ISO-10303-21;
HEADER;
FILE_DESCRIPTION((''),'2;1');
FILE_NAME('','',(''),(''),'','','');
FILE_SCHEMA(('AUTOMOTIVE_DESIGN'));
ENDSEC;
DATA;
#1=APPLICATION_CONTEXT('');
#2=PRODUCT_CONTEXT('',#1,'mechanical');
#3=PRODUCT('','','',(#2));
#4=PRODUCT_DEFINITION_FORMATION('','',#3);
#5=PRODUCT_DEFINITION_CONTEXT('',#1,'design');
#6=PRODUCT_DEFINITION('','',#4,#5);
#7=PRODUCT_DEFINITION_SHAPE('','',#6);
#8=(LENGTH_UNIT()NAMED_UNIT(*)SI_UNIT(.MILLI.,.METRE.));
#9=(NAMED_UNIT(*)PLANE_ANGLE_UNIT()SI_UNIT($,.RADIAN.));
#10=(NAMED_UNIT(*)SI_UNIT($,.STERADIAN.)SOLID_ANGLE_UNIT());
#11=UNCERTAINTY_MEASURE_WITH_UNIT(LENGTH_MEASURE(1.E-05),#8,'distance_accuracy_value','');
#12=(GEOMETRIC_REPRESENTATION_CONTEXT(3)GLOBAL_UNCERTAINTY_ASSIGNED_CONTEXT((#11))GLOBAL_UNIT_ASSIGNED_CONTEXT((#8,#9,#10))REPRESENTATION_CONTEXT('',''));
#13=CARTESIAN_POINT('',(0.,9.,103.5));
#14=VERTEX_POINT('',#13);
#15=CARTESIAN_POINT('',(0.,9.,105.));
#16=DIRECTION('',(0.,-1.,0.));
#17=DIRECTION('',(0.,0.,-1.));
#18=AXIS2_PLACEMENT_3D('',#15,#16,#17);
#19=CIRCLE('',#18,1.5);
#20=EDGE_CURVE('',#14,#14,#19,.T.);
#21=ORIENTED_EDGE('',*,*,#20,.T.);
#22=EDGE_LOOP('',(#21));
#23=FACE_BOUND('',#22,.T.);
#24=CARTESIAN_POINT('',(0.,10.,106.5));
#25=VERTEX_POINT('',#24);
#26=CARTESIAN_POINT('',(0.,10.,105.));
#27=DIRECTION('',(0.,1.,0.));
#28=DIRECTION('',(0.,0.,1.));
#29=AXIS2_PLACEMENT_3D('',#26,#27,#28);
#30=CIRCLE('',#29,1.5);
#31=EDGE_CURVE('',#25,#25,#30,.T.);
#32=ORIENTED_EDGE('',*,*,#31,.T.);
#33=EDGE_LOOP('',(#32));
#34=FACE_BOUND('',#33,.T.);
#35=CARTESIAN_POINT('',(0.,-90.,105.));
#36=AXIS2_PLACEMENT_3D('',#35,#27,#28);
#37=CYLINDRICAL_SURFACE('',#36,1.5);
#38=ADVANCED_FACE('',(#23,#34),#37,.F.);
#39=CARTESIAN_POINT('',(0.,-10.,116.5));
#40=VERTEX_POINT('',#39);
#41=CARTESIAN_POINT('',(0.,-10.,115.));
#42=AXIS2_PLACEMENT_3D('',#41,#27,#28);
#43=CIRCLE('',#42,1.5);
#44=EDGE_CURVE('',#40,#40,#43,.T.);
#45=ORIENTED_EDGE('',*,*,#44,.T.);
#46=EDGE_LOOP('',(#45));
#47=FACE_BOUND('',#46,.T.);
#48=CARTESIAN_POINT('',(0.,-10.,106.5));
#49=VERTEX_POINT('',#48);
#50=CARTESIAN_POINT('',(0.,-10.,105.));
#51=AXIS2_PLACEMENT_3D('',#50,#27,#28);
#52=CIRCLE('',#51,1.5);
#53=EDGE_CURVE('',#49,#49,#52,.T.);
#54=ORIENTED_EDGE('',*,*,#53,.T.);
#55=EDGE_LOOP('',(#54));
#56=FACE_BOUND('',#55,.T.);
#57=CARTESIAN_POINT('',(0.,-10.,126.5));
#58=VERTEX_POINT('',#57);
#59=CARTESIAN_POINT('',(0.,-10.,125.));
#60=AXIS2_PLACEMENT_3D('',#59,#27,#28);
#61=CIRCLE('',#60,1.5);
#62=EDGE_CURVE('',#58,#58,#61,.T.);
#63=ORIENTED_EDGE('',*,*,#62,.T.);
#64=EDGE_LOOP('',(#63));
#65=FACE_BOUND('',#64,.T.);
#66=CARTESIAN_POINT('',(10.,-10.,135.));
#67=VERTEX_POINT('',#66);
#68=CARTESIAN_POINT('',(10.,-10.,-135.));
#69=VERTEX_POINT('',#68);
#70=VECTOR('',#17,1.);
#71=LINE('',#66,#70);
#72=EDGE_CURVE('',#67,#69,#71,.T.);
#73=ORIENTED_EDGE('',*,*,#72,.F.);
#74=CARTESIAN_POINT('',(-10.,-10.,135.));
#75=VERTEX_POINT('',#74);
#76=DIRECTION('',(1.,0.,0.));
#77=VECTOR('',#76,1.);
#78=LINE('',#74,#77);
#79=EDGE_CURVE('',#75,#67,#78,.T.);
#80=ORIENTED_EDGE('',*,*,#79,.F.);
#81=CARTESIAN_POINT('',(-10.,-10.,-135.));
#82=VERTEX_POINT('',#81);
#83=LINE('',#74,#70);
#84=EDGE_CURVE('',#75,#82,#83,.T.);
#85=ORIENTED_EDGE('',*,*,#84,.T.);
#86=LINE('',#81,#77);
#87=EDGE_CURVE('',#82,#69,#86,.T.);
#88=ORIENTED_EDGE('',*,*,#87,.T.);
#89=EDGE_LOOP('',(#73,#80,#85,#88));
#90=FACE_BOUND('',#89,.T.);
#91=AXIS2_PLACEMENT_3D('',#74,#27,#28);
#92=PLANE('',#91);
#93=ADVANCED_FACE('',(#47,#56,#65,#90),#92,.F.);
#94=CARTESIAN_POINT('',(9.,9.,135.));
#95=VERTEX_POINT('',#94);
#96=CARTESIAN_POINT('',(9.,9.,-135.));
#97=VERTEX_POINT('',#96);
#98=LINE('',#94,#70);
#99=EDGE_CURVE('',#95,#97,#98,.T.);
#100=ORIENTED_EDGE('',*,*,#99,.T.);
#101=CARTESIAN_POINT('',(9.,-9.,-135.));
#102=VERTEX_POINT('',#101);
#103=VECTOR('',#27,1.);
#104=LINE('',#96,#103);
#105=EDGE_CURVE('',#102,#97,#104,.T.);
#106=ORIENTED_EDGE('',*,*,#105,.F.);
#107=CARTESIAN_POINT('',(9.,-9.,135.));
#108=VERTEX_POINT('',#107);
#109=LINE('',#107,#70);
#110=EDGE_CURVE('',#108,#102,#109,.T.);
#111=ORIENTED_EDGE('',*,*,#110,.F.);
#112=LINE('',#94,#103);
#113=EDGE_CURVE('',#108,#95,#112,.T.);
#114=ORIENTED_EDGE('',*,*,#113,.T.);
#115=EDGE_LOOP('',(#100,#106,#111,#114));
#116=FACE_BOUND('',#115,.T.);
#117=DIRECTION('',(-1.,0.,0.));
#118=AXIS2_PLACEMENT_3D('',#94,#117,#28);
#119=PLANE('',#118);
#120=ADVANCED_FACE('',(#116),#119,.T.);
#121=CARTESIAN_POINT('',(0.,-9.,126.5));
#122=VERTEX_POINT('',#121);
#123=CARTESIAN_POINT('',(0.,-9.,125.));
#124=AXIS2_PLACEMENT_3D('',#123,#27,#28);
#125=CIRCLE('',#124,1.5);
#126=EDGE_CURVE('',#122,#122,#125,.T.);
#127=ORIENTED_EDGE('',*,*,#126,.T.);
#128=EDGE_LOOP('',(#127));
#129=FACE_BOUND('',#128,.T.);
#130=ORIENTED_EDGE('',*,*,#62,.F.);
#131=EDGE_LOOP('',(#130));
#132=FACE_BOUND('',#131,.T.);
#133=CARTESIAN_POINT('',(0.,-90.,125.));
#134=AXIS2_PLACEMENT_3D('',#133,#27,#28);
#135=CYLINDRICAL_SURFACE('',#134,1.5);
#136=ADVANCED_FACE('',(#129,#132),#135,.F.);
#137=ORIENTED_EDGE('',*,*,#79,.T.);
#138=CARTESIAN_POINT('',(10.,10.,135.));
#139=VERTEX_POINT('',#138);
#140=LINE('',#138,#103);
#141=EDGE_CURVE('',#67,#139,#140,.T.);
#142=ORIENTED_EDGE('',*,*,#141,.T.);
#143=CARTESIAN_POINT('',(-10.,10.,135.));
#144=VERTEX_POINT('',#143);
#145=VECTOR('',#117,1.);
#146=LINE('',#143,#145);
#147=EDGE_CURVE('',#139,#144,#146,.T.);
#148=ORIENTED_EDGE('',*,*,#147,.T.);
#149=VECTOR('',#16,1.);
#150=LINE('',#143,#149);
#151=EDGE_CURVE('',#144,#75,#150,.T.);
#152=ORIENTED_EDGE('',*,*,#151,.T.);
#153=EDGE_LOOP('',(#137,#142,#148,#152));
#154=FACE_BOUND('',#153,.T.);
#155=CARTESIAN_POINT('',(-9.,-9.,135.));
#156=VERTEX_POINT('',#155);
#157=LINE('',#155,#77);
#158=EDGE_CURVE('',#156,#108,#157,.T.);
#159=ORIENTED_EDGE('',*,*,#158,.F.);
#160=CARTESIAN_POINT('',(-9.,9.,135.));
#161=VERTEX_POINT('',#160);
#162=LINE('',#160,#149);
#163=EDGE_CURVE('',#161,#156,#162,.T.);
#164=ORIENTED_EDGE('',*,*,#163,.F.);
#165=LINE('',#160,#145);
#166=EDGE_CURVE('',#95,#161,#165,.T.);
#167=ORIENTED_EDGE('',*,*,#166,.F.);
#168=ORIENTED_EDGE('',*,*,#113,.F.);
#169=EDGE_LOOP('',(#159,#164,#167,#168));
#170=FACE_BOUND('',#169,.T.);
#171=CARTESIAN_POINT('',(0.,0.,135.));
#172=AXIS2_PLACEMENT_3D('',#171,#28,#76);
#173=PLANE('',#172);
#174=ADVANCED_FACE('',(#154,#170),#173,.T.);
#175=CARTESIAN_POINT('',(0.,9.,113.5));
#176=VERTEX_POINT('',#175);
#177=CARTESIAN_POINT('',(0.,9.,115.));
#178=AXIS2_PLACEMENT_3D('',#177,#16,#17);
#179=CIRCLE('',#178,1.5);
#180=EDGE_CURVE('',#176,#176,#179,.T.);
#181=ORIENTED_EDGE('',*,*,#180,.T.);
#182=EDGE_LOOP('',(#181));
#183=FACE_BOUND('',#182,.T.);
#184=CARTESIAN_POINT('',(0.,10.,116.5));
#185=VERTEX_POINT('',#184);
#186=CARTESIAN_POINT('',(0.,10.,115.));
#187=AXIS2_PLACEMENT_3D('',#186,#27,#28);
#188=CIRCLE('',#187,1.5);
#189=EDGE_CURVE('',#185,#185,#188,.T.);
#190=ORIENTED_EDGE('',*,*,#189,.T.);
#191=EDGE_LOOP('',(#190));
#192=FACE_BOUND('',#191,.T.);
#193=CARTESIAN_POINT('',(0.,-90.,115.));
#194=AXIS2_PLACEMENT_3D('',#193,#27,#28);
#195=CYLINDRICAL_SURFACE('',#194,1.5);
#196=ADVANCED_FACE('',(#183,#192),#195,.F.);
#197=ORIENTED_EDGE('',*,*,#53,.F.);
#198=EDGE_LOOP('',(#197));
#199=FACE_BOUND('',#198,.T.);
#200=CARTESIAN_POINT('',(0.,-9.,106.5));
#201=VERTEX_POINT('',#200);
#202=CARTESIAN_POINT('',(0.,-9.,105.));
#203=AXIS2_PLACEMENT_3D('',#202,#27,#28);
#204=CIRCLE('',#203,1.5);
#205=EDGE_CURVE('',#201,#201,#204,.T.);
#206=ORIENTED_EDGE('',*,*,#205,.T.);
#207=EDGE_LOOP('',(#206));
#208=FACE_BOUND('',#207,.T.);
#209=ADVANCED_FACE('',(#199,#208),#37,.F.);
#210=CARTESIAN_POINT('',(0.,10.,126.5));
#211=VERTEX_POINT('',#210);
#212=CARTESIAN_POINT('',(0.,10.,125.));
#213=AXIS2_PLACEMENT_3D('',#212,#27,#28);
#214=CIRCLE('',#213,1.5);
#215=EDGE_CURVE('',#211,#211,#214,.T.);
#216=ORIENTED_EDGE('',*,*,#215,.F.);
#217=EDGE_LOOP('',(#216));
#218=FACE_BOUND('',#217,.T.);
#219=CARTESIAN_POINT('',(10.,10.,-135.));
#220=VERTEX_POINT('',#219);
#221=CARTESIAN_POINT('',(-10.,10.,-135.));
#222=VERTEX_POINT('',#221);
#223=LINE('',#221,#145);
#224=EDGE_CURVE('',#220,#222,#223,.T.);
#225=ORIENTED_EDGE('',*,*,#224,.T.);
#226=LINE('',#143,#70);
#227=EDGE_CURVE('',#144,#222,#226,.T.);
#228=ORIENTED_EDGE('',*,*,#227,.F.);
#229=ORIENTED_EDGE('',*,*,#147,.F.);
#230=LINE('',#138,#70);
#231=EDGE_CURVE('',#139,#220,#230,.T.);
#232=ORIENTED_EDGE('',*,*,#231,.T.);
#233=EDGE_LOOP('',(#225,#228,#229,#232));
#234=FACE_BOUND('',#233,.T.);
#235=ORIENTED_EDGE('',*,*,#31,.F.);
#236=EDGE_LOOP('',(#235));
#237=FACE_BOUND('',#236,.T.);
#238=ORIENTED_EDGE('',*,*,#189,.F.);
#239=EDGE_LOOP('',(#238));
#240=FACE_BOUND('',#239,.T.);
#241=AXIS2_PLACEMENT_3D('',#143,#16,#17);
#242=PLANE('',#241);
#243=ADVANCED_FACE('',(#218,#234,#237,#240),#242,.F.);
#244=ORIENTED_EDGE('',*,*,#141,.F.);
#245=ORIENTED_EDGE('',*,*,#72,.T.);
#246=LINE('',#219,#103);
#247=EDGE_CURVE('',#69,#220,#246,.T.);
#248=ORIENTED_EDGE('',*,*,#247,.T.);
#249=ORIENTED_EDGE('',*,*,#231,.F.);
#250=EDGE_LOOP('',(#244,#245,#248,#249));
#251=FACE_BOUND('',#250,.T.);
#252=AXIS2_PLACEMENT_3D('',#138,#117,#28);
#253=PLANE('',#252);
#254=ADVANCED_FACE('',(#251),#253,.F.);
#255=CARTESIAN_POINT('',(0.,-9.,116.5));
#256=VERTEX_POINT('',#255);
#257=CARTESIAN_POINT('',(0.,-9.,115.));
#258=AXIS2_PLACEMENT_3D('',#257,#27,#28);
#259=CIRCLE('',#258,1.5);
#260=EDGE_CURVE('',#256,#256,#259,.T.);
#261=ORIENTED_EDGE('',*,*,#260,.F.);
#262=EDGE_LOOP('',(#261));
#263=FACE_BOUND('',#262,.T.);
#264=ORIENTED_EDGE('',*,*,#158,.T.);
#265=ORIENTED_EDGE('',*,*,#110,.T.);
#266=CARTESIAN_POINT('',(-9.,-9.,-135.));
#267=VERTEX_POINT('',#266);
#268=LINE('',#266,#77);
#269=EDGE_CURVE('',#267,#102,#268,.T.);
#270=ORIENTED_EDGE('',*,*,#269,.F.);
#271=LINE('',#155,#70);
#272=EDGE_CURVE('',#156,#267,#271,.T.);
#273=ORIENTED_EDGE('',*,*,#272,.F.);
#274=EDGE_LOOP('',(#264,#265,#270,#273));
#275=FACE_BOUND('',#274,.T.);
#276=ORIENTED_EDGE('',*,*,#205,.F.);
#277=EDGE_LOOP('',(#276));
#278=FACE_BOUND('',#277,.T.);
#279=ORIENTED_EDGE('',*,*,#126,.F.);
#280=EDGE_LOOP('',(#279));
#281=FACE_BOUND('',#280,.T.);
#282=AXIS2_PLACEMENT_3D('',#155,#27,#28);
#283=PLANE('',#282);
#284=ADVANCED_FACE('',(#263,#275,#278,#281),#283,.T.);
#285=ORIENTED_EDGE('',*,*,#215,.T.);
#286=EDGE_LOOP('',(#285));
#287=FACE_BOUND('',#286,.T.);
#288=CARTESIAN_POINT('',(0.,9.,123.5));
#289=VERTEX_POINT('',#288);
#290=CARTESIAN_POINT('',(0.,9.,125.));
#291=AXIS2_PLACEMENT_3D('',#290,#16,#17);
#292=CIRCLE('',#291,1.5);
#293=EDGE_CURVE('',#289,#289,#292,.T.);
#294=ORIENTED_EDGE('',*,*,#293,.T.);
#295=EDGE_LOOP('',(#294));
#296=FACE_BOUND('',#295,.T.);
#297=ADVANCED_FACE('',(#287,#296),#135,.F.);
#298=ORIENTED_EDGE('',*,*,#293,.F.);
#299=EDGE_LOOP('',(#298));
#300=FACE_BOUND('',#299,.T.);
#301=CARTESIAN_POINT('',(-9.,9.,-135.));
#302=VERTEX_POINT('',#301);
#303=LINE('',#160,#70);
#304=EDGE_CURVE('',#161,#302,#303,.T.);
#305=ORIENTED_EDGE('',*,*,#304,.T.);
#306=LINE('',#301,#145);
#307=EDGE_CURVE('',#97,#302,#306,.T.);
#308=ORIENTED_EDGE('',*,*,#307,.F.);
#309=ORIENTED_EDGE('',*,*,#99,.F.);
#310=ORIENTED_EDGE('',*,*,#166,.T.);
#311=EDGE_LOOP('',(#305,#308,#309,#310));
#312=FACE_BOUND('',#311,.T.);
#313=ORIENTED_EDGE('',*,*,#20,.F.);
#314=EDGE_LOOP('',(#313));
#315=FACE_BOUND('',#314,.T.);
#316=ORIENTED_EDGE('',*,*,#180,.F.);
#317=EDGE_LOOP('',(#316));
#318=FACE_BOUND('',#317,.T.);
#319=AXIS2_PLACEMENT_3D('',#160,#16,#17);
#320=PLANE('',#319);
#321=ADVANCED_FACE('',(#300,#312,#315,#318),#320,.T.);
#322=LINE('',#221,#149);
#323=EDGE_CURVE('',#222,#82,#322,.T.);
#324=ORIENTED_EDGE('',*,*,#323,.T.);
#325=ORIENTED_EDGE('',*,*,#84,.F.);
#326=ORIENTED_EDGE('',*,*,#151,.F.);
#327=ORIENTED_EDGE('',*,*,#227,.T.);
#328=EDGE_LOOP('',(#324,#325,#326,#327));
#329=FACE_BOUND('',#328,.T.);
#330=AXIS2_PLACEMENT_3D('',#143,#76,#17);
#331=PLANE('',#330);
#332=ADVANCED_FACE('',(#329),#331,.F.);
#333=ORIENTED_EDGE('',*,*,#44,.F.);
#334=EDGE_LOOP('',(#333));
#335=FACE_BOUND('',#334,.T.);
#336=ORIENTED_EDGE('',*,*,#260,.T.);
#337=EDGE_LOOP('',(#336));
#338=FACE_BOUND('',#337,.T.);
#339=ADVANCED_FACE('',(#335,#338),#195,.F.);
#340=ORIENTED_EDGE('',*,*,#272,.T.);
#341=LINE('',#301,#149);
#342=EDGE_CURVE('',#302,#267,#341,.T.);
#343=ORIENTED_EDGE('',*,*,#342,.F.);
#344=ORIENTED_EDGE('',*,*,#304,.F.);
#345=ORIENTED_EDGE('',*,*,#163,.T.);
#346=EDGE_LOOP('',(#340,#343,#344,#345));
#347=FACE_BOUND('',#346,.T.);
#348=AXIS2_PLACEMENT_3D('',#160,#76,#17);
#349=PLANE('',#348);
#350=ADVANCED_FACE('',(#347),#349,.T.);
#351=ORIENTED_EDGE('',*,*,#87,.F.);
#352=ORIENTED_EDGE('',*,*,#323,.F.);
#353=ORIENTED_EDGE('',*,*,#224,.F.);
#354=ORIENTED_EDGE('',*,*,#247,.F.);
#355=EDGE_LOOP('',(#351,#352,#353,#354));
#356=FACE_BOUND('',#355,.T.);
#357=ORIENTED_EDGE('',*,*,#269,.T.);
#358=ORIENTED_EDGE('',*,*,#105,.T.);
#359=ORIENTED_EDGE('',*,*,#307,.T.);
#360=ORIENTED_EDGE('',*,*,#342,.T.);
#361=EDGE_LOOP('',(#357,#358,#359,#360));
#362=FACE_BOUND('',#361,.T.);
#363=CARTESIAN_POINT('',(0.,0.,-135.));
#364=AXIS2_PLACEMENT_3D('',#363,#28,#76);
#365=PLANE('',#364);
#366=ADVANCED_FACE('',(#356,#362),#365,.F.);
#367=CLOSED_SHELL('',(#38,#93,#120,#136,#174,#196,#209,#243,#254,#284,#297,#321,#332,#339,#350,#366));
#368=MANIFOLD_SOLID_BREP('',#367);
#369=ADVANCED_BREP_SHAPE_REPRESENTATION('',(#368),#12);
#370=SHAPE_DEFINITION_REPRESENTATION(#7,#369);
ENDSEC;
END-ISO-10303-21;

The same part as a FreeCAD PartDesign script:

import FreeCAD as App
import Part
import Sketcher
from FreeCAD import Vector
Q = App.Units.Quantity

doc = App.newDocument("Part")
body = doc.addObject("PartDesign::Body", "Body")

# Sketch on XY plane
sketch1 = body.newObject("Sketcher::SketchObject", "Sketch")
sketch1.AttachmentSupport = (doc.getObject("XY_Plane"), [""])
sketch1.MapMode = "FlatFace"
sketch1.addGeometry(Part.LineSegment(Vector(-10, 10, 0), Vector(-10, -10, 0)), False)
sketch1.addGeometry(Part.LineSegment(Vector(-10, -10, 0), Vector(10, -10, 0)), False)
sketch1.addGeometry(Part.LineSegment(Vector(10, -10, 0), Vector(10, 10, 0)), False)
sketch1.addGeometry(Part.LineSegment(Vector(10, 10, 0), Vector(-10, 10, 0)), False)
sketch1.addGeometry(Part.LineSegment(Vector(9, -9, 0), Vector(-9, -9, 0)), False)
sketch1.addGeometry(Part.LineSegment(Vector(-9, -9, 0), Vector(-9, 9, 0)), False)
sketch1.addGeometry(Part.LineSegment(Vector(-9, 9, 0), Vector(9, 9, 0)), False)
sketch1.addGeometry(Part.LineSegment(Vector(9, 9, 0), Vector(9, -9, 0)), False)
sketch1.addConstraint(Sketcher.Constraint("Coincident", 0, 2, 1, 1))
sketch1.addConstraint(Sketcher.Constraint("Coincident", 1, 2, 2, 1))
sketch1.addConstraint(Sketcher.Constraint("Coincident", 2, 2, 3, 1))
sketch1.addConstraint(Sketcher.Constraint("Coincident", 3, 2, 0, 1))
sketch1.addConstraint(Sketcher.Constraint("Coincident", 4, 2, 5, 1))
sketch1.addConstraint(Sketcher.Constraint("Coincident", 5, 2, 6, 1))
sketch1.addConstraint(Sketcher.Constraint("Coincident", 6, 2, 7, 1))
sketch1.addConstraint(Sketcher.Constraint("Coincident", 7, 2, 4, 1))
sketch1.addConstraint(Sketcher.Constraint("Vertical", 0))
sketch1.addConstraint(Sketcher.Constraint("Horizontal", 1))
sketch1.addConstraint(Sketcher.Constraint("Vertical", 2))
sketch1.addConstraint(Sketcher.Constraint("Horizontal", 3))
sketch1.addConstraint(Sketcher.Constraint("Horizontal", 4))
sketch1.addConstraint(Sketcher.Constraint("Vertical", 5))
sketch1.addConstraint(Sketcher.Constraint("Horizontal", 6))
sketch1.addConstraint(Sketcher.Constraint("Vertical", 7))
sketch1.addConstraint(Sketcher.Constraint("Symmetric", 0, 2, 2, 2, -1, 1))
sketch1.addConstraint(Sketcher.Constraint("Symmetric", 4, 2, 6, 2, -1, 1))
sketch1.addConstraint(Sketcher.Constraint("Equal", 3, 0))
sketch1.addConstraint(Sketcher.Constraint("Equal", 6, 5))
sketch1.addConstraint(Sketcher.Constraint("DistanceX", 1, 1, 1, 2, Q("20 mm")))
sketch1.addConstraint(Sketcher.Constraint("DistanceX", 4, 2, 4, 1, Q("18 mm")))
pad1 = body.newObject("PartDesign::Pad", "Pad")
pad1.Profile = sketch1
pad1.Length = 270
pad1.Midplane = True

# Sketch on XZ plane
sketch2 = body.newObject("Sketcher::SketchObject", "Sketch001")
sketch2.AttachmentSupport = (doc.getObject("XZ_Plane"), [""])
sketch2.MapMode = "FlatFace"
sketch2.AttachmentOffset = App.Placement(Vector(0, 0, -10), App.Rotation())
sketch2.addGeometry(Part.Circle(Vector(0, 125, 0), Vector(0, 0, 1), 1.5), False)
sketch2.addGeometry(Part.Circle(Vector(0, 115, 0), Vector(0, 0, 1), 1.5), False)
sketch2.addGeometry(Part.Circle(Vector(0, 105, 0), Vector(0, 0, 1), 1.5), False)
sketch2.addConstraint(Sketcher.Constraint("Equal", 0, 1))
sketch2.addConstraint(Sketcher.Constraint("Equal", 1, 2))
sketch2.addConstraint(Sketcher.Constraint("PointOnObject", 0, 3, -2))
sketch2.addConstraint(Sketcher.Constraint("PointOnObject", 1, 3, -2))
sketch2.addConstraint(Sketcher.Constraint("PointOnObject", 2, 3, -2))
sketch2.addConstraint(Sketcher.Constraint("Diameter", 0, Q("3 mm")))
sketch2.addConstraint(Sketcher.Constraint("DistanceY", -1, 1, 0, 3, Q("125 mm")))
sketch2.addConstraint(Sketcher.Constraint("DistanceY", -1, 1, 1, 3, Q("115 mm")))
sketch2.addConstraint(Sketcher.Constraint("DistanceY", -1, 1, 2, 3, Q("105 mm")))
pocket1 = body.newObject("PartDesign::Pocket", "Pocket")
pocket1.Profile = sketch2
pocket1.Length = 100
pocket1.Reversed = True

doc.recompute()
